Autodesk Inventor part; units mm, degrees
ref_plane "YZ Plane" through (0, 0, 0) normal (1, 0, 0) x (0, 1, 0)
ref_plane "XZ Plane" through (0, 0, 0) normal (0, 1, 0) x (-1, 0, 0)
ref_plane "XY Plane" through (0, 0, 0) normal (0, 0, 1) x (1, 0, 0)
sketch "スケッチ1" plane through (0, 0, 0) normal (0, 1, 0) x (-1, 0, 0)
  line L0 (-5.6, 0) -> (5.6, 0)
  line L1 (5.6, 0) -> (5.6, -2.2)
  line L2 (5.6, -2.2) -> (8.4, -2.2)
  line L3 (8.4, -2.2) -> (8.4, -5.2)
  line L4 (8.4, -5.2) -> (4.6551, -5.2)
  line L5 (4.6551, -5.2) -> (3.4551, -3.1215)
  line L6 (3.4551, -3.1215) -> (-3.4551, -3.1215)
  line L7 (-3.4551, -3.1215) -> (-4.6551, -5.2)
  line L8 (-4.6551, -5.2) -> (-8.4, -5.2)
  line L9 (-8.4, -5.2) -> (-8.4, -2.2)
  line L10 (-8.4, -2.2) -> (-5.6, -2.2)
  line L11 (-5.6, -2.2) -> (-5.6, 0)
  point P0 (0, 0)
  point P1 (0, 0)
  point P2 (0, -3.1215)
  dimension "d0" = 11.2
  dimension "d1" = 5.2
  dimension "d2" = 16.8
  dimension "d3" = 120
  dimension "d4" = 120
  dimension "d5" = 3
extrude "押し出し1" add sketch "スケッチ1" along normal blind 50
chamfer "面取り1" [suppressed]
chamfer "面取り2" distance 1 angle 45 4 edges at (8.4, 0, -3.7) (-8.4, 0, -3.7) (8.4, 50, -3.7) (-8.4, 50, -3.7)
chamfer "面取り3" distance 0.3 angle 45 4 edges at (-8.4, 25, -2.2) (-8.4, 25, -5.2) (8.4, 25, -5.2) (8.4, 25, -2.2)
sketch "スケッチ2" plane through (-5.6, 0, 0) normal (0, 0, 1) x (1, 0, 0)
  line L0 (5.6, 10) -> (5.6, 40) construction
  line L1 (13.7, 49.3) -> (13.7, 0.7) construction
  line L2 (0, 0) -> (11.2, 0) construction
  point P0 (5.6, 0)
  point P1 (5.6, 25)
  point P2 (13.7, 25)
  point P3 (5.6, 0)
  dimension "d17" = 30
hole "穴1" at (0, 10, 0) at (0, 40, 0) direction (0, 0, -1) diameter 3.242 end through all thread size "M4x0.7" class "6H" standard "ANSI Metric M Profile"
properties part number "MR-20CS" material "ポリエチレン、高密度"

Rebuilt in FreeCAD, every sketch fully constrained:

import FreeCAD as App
import Part
import Sketcher
from FreeCAD import Vector
Q = App.Units.Quantity


def edges_at(feature, points):
    """Names of the edges that pass closest to the given points."""
    edges = feature.Shape.Edges
    near = lambda p: min(range(len(edges)), key=lambda i: edges[i].distToShape(Part.Vertex(*p))[0])
    return sorted({f"Edge{near(p) + 1}" for p in points})


def add_polygon(sketch, points):
    """Adds a closed chain of lines whose ends are joined by coincident constraints."""
    first, n = sketch.GeometryCount, len(points)
    for a, b in zip(points, points[1:] + points[:1]):
        sketch.addGeometry(Part.LineSegment(App.Vector(*a, 0), App.Vector(*b, 0)), False)
    for i in range(n):
        sketch.addConstraint(Sketcher.Constraint("Coincident", first + i, 2, first + (i + 1) % n, 1))

doc = App.newDocument("Part")
body = doc.addObject("PartDesign::Body", "Body")

sketch1 = doc.addObject("Sketcher::SketchObject", "Sketch")
body.addObject(sketch1)
sketch1.AttachmentSupport = (doc.XZ_Plane, [""])
sketch1.MapMode = "FlatFace"
add_polygon(sketch1, [(-5.6, 0), (5.6, 0), (5.6, -2.2), (8.4, -2.2), (8.4, -5.2), (4.7, -5.2), (3.5, -3.1), (-3.5, -3.1), (-4.7, -5.2), (-8.4, -5.2), (-8.4, -2.2), (-5.6, -2.2)])
sketch1.addConstraint(Sketcher.Constraint("Horizontal", 0))
sketch1.addConstraint(Sketcher.Constraint("Vertical", 1))
sketch1.addConstraint(Sketcher.Constraint("Horizontal", 2))
sketch1.addConstraint(Sketcher.Constraint("Vertical", 3))
sketch1.addConstraint(Sketcher.Constraint("Horizontal", 4))
sketch1.addConstraint(Sketcher.Constraint("Horizontal", 6))
sketch1.addConstraint(Sketcher.Constraint("Horizontal", 8))
sketch1.addConstraint(Sketcher.Constraint("Vertical", 9))
sketch1.addConstraint(Sketcher.Constraint("Horizontal", 10))
sketch1.addConstraint(Sketcher.Constraint("Vertical", 11))
sketch1.addConstraint(Sketcher.Constraint("Symmetric", 0, 2, 11, 2, -1, 1))
sketch1.addConstraint(Sketcher.Constraint("Symmetric", 4, 2, 7, 2, -2))
sketch1.addConstraint(Sketcher.Constraint("Symmetric", 2, 2, 9, 2, -2))
sketch1.addConstraint(Sketcher.Constraint("Equal", 5, 7))
sketch1.addConstraint(Sketcher.Constraint("DistanceY", 3, 2, 3, 1, 3.0))
sketch1.addConstraint(Sketcher.Constraint("Angle", 5, Q("119.9995 deg")))
sketch1.addConstraint(Sketcher.Constraint("DistanceX", 0, 1, 0, 2, 11.2))
sketch1.addConstraint(Sketcher.Constraint("DistanceY", 3, 2, -1, 1, 5.2))
sketch1.addConstraint(Sketcher.Constraint("DistanceX", 2, 1, 2, 2, 2.8))
sketch1.addConstraint(Sketcher.Constraint("Distance", 5, 2.4))
sketch1.addConstraint(Sketcher.Constraint("DistanceX", 4, 2, 4, 1, 3.745))
pad1 = doc.addObject("PartDesign::Pad", "Pad")
body.addObject(pad1)
pad1.Profile = sketch1
pad1.Length = 50
pad1.Reversed = True
doc.recompute()

chamfer = doc.addObject("PartDesign::Chamfer", "Chamfer")
body.addObject(chamfer)
chamfer.Base = (pad1, edges_at(pad1, [
    (8.4, 0, -3.7),
    (-8.4, 0, -3.7),
    (8.4, 50, -3.7),
    (-8.4, 50, -3.7),
]))
chamfer.Size = 1
doc.recompute()

chamfer2 = doc.addObject("PartDesign::Chamfer", "Chamfer001")
body.addObject(chamfer2)
chamfer2.Base = (chamfer, edges_at(chamfer, [
    (-8.4, 25, -2.2),
    (-8.4, 25, -5.2),
    (8.4, 25, -5.2),
    (8.4, 25, -2.2),
]))
chamfer2.Size = 0.3

sketch2 = doc.addObject("Sketcher::SketchObject", "Sketch001")
body.addObject(sketch2)
sketch2.AttachmentSupport = (doc.XY_Plane, [""])
sketch2.MapMode = "FlatFace"
sketch2.addGeometry(Part.Circle(Vector(0, 10, 0), Vector(0, 0, 1), 1.6), False)
sketch2.addGeometry(Part.Circle(Vector(0, 40, 0), Vector(0, 0, 1), 1.6), False)
sketch2.addConstraint(Sketcher.Constraint("Equal", 0, 1))
sketch2.addConstraint(Sketcher.Constraint("PointOnObject", 0, 3, -2))
sketch2.addConstraint(Sketcher.Constraint("PointOnObject", 1, 3, -2))
sketch2.addConstraint(Sketcher.Constraint("Diameter", 0, 3.242))
sketch2.addConstraint(Sketcher.Constraint("DistanceY", -1, 1, 0, 3, 10.0))
sketch2.addConstraint(Sketcher.Constraint("DistanceY", -1, 1, 1, 3, 40.0))
doc.recompute()
hole = doc.addObject("PartDesign::Hole", "Hole")
body.addObject(hole)
hole.Profile = sketch2
hole.ThreadType = "None"
hole.Diameter = 3.242
hole.DepthType = "ThroughAll"

doc.recompute()
